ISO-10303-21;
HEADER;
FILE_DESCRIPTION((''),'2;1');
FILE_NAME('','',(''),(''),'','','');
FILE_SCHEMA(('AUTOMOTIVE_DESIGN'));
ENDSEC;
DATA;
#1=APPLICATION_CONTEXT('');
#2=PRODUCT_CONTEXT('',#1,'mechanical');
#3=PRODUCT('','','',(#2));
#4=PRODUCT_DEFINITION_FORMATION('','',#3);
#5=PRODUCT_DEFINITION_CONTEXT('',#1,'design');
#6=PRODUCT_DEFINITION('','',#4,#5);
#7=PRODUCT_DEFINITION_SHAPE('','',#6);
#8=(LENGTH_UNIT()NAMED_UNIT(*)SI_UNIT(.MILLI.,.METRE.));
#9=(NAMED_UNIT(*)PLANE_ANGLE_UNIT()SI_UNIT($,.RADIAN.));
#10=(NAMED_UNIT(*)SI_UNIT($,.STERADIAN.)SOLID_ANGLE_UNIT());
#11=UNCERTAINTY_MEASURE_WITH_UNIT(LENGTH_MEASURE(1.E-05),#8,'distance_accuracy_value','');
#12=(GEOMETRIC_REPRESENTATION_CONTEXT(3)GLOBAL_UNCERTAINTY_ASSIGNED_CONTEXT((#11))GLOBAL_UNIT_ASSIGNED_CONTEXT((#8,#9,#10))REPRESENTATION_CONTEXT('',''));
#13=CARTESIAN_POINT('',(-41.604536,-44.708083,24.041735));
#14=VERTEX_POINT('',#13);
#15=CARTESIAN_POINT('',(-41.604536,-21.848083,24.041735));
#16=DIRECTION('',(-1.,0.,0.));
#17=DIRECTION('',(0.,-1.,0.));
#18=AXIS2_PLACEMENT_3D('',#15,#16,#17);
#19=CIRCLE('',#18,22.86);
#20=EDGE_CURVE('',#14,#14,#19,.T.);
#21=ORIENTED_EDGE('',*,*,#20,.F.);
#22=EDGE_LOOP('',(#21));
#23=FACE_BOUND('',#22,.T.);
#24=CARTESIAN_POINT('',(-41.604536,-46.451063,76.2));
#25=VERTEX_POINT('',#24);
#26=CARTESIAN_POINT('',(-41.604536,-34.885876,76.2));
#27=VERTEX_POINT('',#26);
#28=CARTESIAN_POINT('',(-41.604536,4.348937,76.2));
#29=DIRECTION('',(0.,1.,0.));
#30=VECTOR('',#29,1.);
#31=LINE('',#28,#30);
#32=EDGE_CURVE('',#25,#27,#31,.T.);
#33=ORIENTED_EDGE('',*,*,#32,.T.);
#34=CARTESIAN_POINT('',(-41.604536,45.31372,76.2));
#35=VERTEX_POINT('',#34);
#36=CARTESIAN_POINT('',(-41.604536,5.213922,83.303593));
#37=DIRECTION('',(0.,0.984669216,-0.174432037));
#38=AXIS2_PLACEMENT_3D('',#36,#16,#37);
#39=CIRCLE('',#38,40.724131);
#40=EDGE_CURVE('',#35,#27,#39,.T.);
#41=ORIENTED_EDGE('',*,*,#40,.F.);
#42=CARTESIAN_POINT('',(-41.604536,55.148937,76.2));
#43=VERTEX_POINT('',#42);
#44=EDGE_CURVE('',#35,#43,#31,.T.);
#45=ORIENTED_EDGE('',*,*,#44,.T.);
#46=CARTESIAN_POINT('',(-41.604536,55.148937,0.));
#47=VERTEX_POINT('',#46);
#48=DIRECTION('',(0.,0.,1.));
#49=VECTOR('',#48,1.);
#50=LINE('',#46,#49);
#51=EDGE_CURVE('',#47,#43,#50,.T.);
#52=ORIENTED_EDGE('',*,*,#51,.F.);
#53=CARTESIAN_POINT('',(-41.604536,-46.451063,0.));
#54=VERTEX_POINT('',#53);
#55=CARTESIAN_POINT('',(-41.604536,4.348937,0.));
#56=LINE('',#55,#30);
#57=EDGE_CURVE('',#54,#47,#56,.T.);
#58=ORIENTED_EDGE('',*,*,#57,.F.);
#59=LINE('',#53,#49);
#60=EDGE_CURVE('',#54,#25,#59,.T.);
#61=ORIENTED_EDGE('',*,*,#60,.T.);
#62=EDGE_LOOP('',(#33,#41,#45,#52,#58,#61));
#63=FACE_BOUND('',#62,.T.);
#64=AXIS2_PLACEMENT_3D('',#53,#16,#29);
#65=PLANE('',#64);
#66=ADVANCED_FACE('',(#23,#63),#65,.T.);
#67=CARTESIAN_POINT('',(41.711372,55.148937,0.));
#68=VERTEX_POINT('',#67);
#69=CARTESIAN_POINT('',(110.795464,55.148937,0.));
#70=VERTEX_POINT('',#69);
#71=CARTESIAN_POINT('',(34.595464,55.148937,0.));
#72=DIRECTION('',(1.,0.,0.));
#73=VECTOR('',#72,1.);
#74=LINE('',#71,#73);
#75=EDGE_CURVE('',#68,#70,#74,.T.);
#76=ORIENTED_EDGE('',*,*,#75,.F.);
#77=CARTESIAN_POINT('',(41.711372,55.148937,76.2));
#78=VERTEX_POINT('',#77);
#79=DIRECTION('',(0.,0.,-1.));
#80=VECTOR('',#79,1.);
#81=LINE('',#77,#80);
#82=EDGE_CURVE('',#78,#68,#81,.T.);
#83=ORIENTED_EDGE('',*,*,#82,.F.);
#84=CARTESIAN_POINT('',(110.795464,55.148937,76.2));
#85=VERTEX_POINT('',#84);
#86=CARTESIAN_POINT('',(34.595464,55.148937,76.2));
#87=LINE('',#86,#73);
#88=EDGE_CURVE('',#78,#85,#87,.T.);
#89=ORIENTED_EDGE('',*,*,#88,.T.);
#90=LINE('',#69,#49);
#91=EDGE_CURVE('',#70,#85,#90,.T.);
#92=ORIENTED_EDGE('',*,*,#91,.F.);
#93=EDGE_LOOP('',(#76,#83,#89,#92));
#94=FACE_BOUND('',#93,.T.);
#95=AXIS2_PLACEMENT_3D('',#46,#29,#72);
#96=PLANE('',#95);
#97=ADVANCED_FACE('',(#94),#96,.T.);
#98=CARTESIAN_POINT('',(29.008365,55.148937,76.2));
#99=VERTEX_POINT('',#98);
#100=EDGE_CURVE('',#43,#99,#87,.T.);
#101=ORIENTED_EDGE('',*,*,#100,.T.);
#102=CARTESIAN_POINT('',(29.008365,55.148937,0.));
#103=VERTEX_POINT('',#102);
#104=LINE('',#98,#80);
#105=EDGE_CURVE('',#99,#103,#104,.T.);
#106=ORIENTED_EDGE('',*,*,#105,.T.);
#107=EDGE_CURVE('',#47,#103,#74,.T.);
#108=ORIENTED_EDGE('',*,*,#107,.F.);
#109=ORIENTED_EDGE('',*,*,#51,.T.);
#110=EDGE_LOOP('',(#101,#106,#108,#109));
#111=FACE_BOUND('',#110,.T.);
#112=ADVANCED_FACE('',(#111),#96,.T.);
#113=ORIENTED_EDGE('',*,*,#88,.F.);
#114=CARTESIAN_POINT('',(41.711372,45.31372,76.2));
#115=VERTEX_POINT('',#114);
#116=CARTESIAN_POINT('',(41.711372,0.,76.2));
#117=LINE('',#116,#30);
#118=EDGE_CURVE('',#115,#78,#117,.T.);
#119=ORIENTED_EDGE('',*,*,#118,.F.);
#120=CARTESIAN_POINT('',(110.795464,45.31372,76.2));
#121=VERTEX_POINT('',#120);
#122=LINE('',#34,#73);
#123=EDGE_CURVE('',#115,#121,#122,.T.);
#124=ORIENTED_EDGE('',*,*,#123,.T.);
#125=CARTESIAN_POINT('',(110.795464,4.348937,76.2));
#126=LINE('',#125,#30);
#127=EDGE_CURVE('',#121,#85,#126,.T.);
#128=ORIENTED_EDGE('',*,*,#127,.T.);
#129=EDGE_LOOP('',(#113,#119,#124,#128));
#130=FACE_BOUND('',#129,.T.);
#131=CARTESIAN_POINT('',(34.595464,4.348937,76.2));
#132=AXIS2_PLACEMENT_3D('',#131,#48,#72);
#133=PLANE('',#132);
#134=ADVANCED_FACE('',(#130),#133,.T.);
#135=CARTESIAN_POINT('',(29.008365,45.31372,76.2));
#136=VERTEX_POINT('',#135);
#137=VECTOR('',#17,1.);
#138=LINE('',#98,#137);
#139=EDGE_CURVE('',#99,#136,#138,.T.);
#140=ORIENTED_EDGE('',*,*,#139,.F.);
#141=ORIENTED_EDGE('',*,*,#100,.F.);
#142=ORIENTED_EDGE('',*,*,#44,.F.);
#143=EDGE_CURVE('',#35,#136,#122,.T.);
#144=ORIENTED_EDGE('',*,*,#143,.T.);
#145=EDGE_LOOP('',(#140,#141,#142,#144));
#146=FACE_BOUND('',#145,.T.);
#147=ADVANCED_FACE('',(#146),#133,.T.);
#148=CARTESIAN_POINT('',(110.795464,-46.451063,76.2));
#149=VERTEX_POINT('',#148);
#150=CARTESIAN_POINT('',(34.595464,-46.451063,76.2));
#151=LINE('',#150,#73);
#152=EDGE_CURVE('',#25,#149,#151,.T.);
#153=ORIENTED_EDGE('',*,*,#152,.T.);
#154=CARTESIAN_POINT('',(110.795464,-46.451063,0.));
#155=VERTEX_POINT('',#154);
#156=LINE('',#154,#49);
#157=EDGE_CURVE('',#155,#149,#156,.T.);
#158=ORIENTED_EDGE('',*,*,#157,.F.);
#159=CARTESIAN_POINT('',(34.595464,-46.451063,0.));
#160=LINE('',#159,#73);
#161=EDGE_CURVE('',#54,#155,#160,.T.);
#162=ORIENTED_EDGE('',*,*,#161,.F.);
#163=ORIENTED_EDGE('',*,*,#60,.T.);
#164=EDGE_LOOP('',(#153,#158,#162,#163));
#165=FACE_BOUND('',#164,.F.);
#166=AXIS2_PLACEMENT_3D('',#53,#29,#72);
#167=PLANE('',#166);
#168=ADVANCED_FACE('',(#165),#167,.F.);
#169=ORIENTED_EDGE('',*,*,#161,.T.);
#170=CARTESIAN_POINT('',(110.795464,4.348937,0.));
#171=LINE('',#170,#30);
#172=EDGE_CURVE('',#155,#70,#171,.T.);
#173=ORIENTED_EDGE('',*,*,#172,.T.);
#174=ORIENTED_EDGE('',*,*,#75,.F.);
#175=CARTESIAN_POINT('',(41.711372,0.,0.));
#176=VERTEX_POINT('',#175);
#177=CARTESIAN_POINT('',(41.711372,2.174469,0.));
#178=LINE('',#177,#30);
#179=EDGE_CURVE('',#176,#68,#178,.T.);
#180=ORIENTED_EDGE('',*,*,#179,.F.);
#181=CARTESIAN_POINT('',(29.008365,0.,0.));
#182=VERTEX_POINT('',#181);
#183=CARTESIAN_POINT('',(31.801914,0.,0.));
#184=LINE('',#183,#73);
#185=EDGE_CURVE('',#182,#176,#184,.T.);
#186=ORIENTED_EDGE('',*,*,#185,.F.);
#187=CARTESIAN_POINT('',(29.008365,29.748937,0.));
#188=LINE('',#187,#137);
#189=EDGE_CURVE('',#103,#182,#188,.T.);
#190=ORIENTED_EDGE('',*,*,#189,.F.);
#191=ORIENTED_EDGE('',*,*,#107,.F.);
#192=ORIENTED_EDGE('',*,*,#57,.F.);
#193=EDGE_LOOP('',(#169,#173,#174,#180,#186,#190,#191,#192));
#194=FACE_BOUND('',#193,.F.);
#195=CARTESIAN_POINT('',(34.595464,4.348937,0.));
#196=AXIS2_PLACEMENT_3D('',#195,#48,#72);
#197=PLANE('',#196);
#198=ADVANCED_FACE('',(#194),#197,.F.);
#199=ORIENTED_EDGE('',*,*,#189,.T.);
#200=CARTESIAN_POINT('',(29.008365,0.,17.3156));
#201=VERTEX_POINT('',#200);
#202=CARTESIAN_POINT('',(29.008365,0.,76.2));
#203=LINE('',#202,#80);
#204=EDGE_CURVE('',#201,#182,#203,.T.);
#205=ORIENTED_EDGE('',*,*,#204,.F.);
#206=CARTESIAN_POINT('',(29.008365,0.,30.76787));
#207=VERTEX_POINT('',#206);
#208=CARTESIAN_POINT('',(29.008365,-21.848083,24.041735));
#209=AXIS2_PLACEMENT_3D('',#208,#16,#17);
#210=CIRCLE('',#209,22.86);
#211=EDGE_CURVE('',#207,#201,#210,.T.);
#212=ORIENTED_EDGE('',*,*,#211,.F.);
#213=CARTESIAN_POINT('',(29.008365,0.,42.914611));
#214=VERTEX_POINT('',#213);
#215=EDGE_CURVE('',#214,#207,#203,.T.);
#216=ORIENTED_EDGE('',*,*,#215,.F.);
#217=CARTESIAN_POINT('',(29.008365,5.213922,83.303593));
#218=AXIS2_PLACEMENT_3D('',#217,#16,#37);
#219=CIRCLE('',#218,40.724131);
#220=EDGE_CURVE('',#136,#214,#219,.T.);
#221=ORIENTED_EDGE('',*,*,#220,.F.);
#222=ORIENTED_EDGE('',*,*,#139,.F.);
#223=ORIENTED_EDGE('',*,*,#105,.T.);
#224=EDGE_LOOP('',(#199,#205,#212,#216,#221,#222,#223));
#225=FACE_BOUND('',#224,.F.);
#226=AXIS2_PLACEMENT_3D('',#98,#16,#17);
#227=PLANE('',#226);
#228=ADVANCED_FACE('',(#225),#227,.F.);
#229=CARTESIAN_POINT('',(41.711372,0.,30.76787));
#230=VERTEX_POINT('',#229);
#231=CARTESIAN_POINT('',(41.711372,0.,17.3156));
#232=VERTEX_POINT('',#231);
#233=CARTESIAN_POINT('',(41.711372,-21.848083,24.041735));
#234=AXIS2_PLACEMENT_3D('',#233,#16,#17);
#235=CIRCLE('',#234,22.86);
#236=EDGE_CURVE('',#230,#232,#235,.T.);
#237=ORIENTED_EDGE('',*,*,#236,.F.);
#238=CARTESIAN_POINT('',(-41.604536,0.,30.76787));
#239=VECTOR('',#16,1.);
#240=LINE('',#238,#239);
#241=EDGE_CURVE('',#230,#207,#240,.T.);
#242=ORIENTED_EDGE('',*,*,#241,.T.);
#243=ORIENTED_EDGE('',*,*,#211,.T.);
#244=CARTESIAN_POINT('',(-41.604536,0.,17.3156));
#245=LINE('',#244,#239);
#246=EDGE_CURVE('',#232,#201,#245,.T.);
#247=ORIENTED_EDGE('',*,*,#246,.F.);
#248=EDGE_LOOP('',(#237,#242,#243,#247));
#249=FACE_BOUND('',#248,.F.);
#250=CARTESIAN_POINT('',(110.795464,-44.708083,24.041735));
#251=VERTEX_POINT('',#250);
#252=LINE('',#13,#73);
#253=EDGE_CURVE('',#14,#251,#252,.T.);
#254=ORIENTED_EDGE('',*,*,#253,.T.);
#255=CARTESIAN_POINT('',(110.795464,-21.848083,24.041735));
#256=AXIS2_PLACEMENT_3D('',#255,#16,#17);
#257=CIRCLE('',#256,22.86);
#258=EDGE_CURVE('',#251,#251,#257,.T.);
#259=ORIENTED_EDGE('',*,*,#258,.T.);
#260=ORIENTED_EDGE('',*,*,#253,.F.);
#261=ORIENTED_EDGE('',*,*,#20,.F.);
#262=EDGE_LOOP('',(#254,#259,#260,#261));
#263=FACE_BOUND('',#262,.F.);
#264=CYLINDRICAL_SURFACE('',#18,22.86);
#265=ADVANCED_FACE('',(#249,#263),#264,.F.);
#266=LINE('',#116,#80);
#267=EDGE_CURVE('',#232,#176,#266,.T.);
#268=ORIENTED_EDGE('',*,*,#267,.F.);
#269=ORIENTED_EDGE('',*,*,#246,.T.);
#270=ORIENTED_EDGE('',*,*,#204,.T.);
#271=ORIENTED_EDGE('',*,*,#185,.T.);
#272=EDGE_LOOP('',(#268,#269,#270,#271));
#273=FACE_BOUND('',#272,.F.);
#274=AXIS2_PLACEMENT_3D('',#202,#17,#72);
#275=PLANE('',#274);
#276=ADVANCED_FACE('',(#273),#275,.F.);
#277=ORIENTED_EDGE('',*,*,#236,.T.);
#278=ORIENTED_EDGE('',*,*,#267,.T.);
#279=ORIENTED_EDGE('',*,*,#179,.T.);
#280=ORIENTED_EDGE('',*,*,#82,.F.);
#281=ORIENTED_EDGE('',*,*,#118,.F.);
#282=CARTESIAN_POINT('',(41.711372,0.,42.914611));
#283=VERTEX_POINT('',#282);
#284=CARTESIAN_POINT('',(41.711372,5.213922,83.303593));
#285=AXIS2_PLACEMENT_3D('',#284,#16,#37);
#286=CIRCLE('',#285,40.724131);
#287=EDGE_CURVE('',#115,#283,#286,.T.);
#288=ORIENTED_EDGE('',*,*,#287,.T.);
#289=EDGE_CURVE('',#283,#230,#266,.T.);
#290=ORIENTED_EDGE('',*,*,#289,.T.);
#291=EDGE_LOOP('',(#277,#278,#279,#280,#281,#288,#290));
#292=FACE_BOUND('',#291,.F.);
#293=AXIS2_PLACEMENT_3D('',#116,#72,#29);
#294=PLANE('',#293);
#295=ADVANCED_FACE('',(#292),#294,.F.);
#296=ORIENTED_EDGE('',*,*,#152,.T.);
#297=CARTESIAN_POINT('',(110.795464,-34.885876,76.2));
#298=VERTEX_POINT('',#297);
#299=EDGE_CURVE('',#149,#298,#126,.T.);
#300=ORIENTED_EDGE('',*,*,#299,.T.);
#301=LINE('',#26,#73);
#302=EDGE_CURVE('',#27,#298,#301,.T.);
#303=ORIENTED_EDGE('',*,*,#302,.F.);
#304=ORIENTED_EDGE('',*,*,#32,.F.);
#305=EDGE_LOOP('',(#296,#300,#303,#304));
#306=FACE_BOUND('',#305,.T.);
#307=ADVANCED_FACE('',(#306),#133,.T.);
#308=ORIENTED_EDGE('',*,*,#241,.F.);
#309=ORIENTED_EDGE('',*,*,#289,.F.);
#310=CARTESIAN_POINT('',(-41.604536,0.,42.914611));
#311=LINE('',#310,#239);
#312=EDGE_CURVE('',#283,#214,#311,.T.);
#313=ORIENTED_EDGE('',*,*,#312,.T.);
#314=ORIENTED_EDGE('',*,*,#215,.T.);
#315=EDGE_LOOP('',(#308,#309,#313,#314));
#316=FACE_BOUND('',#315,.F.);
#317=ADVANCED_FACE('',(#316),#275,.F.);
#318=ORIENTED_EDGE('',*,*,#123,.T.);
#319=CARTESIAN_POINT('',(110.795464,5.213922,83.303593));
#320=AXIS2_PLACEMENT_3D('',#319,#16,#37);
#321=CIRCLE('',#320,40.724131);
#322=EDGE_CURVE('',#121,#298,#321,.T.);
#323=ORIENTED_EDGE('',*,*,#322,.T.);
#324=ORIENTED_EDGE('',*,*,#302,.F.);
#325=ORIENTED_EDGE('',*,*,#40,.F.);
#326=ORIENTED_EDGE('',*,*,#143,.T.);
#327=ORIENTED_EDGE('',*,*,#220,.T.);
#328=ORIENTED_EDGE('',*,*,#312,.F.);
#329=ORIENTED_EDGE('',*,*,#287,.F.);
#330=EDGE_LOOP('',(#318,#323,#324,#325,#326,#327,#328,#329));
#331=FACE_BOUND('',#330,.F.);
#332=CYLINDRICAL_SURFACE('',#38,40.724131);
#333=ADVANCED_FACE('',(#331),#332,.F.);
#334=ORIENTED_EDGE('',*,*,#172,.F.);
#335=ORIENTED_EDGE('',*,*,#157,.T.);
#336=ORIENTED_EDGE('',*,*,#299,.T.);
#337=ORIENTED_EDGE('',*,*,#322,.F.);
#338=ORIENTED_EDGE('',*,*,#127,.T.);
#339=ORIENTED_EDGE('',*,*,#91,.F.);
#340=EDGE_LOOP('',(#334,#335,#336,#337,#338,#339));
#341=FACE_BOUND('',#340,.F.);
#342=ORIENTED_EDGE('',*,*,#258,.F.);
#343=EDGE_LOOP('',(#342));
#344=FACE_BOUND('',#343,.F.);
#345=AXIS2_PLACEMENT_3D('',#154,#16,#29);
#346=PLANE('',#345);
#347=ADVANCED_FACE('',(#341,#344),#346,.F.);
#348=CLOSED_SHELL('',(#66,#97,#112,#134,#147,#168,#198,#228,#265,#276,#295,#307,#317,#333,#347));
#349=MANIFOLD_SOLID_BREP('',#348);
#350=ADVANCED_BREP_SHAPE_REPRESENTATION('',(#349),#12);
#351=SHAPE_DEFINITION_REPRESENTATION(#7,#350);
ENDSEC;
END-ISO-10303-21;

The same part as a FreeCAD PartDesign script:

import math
import FreeCAD as App
import Part
import Sketcher
Q = App.Units.Quantity

doc = App.newDocument("Part")
body = doc.addObject("PartDesign::Body", "Body")

# Sketch on XY plane
sketch1 = doc.addObject("Sketcher::SketchObject", "Sketch")
body.addObject(sketch1)
sketch1.AttachmentSupport = (doc.XY_Plane, [""])
sketch1.MapMode = "FlatFace"
sketch1.addGeometry([
    Part.LineSegment(App.Vector(-42, 55, 0), App.Vector(-42, -46, 0)),
    Part.LineSegment(App.Vector(-42, -46, 0), App.Vector(111, -46, 0)),
    Part.LineSegment(App.Vector(111, -46, 0), App.Vector(111, 55, 0)),
    Part.LineSegment(App.Vector(111, 55, 0), App.Vector(-42, 55, 0)),
], False)
sketch1.addConstraint([
    Sketcher.Constraint("Coincident", 0, 2, 1, 1),
    Sketcher.Constraint("Coincident", 1, 2, 2, 1),
    Sketcher.Constraint("Coincident", 2, 2, 3, 1),
    Sketcher.Constraint("Coincident", 3, 2, 0, 1),
    Sketcher.Constraint("Vertical", 0),
    Sketcher.Constraint("Horizontal", 1),
    Sketcher.Constraint("Vertical", 2),
    Sketcher.Constraint("Horizontal", 3),
    Sketcher.Constraint("DistanceX", 1, 1, 1, 2, Q("6 in")),
    Sketcher.Constraint("DistanceY", 0, 2, 0, 1, Q("4 in")),
    Sketcher.Constraint("DistanceX", 0, 2, -1, 1, 41.604536),
    Sketcher.Constraint("DistanceY", 0, 2, -1, 1, 46.451063),
])
pad1 = doc.addObject("PartDesign::Pad", "Pad")
body.addObject(pad1)
pad1.Profile = sketch1
pad1.Length = Q("3 in")

# Sketch on YZ plane
sketch2 = doc.addObject("Sketcher::SketchObject", "Sketch001")
body.addObject(sketch2)
sketch2.AttachmentSupport = (doc.YZ_Plane, [""])
sketch2.MapMode = "FlatFace"
sketch2.AttachmentOffset = App.Placement(App.Vector(0, 0, -41.604536), App.Rotation())
sketch2.addGeometry([
    Part.LineSegment(App.Vector(-35, 76, 0), App.Vector(45, 76, 0)),
    Part.ArcOfCircle(Part.Circle(App.Vector(5, 83, 0), App.Vector(0, 0, 1), 41), math.radians(-170), math.radians(-10)),
], False)
sketch2.addConstraint([
    Sketcher.Constraint("Coincident", 0, 1, 1, 1),
    Sketcher.Constraint("Coincident", 1, 2, 0, 2),
    Sketcher.Constraint("Horizontal", 0),
    Sketcher.Constraint("DistanceY", -1, 1, 0, 1, Q("3 in")),
    Sketcher.Constraint("Radius", 1, 40.724131),
    Sketcher.Constraint("DistanceX", 0, 1, 0, 2, 80.199596),
    Sketcher.Constraint("DistanceX", -1, 1, 1, 3, 5.213922),
])
pocket1 = doc.addObject("PartDesign::Pocket", "Pocket")
body.addObject(pocket1)
pocket1.Profile = sketch2
pocket1.Length = Q("6.01 in")
pocket1.Reversed = True

# Sketch on XY plane
sketch3 = doc.addObject("Sketcher::SketchObject", "Sketch002")
body.addObject(sketch3)
sketch3.AttachmentSupport = (doc.XY_Plane, [""])
sketch3.MapMode = "FlatFace"
sketch3.AttachmentOffset = App.Placement(App.Vector(0, 0, 3 * 25.4), App.Rotation())
sketch3.addGeometry([
    Part.LineSegment(App.Vector(29, 55, 0), App.Vector(29, 0, 0)),
    Part.LineSegment(App.Vector(29, 0, 0), App.Vector(42, 0, 0)),
    Part.LineSegment(App.Vector(42, 0, 0), App.Vector(42, 55, 0)),
    Part.LineSegment(App.Vector(42, 55, 0), App.Vector(29, 55, 0)),
], False)
sketch3.addConstraint([
    Sketcher.Constraint("Coincident", 0, 2, 1, 1),
    Sketcher.Constraint("Coincident", 1, 2, 2, 1),
    Sketcher.Constraint("Coincident", 2, 2, 3, 1),
    Sketcher.Constraint("Coincident", 3, 2, 0, 1),
    Sketcher.Constraint("Vertical", 0),
    Sketcher.Constraint("Horizontal", 1),
    Sketcher.Constraint("Vertical", 2),
    Sketcher.Constraint("Horizontal", 3),
    Sketcher.Constraint("PointOnObject", 0, 2, -1),
    Sketcher.Constraint("DistanceX", 1, 1, 1, 2, 12.703007),
    Sketcher.Constraint("DistanceY", 0, 2, 0, 1, 55.148937),
    Sketcher.Constraint("DistanceX", -1, 1, 1, 2, 41.711372),
])
pocket2 = doc.addObject("PartDesign::Pocket", "Pocket001")
body.addObject(pocket2)
pocket2.Profile = sketch3
pocket2.Length = Q("4.54 in")

# Sketch on YZ plane
sketch4 = doc.addObject("Sketcher::SketchObject", "Sketch003")
body.addObject(sketch4)
sketch4.AttachmentSupport = (doc.YZ_Plane, [""])
sketch4.MapMode = "FlatFace"
sketch4.AttachmentOffset = App.Placement(App.Vector(0, 0, -41.604536), App.Rotation())
sketch4.addGeometry(Part.Circle(App.Vector(-22, 24, 0), App.Vector(0, 0, 1), 23), False)
sketch4.addConstraint([
    Sketcher.Constraint("Diameter", 0, Q("1.8 in")),
    Sketcher.Constraint("DistanceX", 0, 3, -1, 1, 21.848083),
    Sketcher.Constraint("DistanceY", -1, 1, 0, 3, 24.041735),
])
pocket3 = doc.addObject("PartDesign::Pocket", "Pocket002")
body.addObject(pocket3)
pocket3.Profile = sketch4
pocket3.Length = Q("7.6 in")
pocket3.Reversed = True

doc.recompute()
